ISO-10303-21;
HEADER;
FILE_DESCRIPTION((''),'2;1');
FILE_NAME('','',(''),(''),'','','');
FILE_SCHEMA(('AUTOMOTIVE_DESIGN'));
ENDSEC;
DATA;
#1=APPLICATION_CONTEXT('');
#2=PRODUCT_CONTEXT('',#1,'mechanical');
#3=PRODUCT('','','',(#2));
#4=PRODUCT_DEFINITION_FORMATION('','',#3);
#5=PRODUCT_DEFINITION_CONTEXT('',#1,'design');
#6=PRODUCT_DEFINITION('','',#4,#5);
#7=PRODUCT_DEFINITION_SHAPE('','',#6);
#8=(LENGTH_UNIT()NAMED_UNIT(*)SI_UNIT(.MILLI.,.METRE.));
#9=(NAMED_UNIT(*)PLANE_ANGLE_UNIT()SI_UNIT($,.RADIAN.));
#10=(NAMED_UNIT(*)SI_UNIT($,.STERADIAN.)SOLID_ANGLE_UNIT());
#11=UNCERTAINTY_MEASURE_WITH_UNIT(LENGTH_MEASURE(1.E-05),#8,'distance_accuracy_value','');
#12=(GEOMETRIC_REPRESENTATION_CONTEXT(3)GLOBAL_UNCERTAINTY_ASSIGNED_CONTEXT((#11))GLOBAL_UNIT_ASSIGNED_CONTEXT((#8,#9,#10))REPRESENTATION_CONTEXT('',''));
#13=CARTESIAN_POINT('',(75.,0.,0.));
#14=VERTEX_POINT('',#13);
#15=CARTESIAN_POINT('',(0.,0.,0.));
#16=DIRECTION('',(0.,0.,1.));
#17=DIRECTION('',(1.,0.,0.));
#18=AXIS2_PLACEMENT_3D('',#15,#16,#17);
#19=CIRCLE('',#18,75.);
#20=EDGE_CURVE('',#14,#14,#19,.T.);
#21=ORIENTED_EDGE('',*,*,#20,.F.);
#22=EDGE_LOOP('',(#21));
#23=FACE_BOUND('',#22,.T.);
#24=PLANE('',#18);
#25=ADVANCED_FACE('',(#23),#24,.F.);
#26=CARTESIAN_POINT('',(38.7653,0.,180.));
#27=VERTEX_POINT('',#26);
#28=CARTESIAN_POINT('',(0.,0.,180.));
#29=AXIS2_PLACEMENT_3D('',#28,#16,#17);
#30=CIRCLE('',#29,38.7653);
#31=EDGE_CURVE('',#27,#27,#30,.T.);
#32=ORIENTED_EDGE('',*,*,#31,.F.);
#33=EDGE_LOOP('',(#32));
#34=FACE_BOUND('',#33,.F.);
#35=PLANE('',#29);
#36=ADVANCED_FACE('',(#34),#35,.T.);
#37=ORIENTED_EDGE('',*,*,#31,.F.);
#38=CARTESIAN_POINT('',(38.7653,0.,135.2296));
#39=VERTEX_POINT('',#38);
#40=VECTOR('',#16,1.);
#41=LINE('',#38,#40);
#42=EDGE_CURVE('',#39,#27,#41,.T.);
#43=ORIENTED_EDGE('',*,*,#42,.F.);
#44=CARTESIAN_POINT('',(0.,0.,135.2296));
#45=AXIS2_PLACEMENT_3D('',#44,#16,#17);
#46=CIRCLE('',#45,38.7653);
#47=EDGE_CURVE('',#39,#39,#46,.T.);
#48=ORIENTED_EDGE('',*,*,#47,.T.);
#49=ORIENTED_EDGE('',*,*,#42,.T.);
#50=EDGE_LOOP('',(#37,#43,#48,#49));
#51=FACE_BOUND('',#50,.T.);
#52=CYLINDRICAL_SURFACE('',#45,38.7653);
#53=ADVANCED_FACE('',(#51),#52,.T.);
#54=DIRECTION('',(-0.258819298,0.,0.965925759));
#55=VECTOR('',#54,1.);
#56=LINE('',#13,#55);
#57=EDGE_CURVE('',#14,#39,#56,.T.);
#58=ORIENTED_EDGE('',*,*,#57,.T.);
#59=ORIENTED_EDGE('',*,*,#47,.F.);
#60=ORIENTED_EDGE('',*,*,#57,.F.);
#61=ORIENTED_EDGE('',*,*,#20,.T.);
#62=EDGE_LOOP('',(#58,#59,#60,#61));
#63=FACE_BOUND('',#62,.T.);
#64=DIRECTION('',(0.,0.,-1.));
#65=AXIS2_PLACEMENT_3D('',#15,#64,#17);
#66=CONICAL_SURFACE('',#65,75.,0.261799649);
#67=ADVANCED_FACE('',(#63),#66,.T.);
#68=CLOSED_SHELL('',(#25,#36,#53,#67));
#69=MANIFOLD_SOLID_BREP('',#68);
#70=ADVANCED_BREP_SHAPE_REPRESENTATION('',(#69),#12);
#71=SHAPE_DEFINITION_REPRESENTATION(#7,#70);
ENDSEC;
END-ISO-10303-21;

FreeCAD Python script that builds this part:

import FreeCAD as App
import Part
import Sketcher
Q = App.Units.Quantity

doc = App.newDocument("Part")
body = doc.addObject("PartDesign::Body", "Body")

sketch1 = doc.addObject("Sketcher::SketchObject", "Sketch")
body.addObject(sketch1)
sketch1.AttachmentSupport = (doc.XZ_Plane, [""])
sketch1.MapMode = "FlatFace"
sketch1.addGeometry([
    Part.LineSegment(App.Vector(75, 0, 0), App.Vector(0, 0, 0)),
    Part.LineSegment(App.Vector(0, 0, 0), App.Vector(0, 180, 0)),
    Part.LineSegment(App.Vector(0, 180, 0), App.Vector(39, 180, 0)),
    Part.LineSegment(App.Vector(39, 180, 0), App.Vector(39, 135, 0)),
    Part.LineSegment(App.Vector(39, 135, 0), App.Vector(75, 0, 0)),
], False)
sketch1.addConstraint([
    Sketcher.Constraint("Coincident", 0, 2, 1, 1),
    Sketcher.Constraint("Coincident", 1, 2, 2, 1),
    Sketcher.Constraint("Coincident", 2, 2, 3, 1),
    Sketcher.Constraint("Coincident", 3, 2, 4, 1),
    Sketcher.Constraint("Coincident", 4, 2, 0, 1),
    Sketcher.Constraint("Horizontal", 0),
    Sketcher.Constraint("Vertical", 1),
    Sketcher.Constraint("Horizontal", 2),
    Sketcher.Constraint("Vertical", 3),
    Sketcher.Constraint("Coincident", 0, 2, -1, 1),
    Sketcher.Constraint("DistanceX", 0, 2, 0, 1, 75.0),
    Sketcher.Constraint("DistanceY", 1, 1, 1, 2, 180.0),
    Sketcher.Constraint("Angle", 4, Q("-75 deg")),
    Sketcher.Constraint("Distance", 4, 140.0),
])
revolution = doc.addObject("PartDesign::Revolution", "Revolution")
body.addObject(revolution)
revolution.Profile = sketch1
revolution.ReferenceAxis = (sketch1, ["V_Axis"])
revolution.Angle = 360

doc.recompute()
